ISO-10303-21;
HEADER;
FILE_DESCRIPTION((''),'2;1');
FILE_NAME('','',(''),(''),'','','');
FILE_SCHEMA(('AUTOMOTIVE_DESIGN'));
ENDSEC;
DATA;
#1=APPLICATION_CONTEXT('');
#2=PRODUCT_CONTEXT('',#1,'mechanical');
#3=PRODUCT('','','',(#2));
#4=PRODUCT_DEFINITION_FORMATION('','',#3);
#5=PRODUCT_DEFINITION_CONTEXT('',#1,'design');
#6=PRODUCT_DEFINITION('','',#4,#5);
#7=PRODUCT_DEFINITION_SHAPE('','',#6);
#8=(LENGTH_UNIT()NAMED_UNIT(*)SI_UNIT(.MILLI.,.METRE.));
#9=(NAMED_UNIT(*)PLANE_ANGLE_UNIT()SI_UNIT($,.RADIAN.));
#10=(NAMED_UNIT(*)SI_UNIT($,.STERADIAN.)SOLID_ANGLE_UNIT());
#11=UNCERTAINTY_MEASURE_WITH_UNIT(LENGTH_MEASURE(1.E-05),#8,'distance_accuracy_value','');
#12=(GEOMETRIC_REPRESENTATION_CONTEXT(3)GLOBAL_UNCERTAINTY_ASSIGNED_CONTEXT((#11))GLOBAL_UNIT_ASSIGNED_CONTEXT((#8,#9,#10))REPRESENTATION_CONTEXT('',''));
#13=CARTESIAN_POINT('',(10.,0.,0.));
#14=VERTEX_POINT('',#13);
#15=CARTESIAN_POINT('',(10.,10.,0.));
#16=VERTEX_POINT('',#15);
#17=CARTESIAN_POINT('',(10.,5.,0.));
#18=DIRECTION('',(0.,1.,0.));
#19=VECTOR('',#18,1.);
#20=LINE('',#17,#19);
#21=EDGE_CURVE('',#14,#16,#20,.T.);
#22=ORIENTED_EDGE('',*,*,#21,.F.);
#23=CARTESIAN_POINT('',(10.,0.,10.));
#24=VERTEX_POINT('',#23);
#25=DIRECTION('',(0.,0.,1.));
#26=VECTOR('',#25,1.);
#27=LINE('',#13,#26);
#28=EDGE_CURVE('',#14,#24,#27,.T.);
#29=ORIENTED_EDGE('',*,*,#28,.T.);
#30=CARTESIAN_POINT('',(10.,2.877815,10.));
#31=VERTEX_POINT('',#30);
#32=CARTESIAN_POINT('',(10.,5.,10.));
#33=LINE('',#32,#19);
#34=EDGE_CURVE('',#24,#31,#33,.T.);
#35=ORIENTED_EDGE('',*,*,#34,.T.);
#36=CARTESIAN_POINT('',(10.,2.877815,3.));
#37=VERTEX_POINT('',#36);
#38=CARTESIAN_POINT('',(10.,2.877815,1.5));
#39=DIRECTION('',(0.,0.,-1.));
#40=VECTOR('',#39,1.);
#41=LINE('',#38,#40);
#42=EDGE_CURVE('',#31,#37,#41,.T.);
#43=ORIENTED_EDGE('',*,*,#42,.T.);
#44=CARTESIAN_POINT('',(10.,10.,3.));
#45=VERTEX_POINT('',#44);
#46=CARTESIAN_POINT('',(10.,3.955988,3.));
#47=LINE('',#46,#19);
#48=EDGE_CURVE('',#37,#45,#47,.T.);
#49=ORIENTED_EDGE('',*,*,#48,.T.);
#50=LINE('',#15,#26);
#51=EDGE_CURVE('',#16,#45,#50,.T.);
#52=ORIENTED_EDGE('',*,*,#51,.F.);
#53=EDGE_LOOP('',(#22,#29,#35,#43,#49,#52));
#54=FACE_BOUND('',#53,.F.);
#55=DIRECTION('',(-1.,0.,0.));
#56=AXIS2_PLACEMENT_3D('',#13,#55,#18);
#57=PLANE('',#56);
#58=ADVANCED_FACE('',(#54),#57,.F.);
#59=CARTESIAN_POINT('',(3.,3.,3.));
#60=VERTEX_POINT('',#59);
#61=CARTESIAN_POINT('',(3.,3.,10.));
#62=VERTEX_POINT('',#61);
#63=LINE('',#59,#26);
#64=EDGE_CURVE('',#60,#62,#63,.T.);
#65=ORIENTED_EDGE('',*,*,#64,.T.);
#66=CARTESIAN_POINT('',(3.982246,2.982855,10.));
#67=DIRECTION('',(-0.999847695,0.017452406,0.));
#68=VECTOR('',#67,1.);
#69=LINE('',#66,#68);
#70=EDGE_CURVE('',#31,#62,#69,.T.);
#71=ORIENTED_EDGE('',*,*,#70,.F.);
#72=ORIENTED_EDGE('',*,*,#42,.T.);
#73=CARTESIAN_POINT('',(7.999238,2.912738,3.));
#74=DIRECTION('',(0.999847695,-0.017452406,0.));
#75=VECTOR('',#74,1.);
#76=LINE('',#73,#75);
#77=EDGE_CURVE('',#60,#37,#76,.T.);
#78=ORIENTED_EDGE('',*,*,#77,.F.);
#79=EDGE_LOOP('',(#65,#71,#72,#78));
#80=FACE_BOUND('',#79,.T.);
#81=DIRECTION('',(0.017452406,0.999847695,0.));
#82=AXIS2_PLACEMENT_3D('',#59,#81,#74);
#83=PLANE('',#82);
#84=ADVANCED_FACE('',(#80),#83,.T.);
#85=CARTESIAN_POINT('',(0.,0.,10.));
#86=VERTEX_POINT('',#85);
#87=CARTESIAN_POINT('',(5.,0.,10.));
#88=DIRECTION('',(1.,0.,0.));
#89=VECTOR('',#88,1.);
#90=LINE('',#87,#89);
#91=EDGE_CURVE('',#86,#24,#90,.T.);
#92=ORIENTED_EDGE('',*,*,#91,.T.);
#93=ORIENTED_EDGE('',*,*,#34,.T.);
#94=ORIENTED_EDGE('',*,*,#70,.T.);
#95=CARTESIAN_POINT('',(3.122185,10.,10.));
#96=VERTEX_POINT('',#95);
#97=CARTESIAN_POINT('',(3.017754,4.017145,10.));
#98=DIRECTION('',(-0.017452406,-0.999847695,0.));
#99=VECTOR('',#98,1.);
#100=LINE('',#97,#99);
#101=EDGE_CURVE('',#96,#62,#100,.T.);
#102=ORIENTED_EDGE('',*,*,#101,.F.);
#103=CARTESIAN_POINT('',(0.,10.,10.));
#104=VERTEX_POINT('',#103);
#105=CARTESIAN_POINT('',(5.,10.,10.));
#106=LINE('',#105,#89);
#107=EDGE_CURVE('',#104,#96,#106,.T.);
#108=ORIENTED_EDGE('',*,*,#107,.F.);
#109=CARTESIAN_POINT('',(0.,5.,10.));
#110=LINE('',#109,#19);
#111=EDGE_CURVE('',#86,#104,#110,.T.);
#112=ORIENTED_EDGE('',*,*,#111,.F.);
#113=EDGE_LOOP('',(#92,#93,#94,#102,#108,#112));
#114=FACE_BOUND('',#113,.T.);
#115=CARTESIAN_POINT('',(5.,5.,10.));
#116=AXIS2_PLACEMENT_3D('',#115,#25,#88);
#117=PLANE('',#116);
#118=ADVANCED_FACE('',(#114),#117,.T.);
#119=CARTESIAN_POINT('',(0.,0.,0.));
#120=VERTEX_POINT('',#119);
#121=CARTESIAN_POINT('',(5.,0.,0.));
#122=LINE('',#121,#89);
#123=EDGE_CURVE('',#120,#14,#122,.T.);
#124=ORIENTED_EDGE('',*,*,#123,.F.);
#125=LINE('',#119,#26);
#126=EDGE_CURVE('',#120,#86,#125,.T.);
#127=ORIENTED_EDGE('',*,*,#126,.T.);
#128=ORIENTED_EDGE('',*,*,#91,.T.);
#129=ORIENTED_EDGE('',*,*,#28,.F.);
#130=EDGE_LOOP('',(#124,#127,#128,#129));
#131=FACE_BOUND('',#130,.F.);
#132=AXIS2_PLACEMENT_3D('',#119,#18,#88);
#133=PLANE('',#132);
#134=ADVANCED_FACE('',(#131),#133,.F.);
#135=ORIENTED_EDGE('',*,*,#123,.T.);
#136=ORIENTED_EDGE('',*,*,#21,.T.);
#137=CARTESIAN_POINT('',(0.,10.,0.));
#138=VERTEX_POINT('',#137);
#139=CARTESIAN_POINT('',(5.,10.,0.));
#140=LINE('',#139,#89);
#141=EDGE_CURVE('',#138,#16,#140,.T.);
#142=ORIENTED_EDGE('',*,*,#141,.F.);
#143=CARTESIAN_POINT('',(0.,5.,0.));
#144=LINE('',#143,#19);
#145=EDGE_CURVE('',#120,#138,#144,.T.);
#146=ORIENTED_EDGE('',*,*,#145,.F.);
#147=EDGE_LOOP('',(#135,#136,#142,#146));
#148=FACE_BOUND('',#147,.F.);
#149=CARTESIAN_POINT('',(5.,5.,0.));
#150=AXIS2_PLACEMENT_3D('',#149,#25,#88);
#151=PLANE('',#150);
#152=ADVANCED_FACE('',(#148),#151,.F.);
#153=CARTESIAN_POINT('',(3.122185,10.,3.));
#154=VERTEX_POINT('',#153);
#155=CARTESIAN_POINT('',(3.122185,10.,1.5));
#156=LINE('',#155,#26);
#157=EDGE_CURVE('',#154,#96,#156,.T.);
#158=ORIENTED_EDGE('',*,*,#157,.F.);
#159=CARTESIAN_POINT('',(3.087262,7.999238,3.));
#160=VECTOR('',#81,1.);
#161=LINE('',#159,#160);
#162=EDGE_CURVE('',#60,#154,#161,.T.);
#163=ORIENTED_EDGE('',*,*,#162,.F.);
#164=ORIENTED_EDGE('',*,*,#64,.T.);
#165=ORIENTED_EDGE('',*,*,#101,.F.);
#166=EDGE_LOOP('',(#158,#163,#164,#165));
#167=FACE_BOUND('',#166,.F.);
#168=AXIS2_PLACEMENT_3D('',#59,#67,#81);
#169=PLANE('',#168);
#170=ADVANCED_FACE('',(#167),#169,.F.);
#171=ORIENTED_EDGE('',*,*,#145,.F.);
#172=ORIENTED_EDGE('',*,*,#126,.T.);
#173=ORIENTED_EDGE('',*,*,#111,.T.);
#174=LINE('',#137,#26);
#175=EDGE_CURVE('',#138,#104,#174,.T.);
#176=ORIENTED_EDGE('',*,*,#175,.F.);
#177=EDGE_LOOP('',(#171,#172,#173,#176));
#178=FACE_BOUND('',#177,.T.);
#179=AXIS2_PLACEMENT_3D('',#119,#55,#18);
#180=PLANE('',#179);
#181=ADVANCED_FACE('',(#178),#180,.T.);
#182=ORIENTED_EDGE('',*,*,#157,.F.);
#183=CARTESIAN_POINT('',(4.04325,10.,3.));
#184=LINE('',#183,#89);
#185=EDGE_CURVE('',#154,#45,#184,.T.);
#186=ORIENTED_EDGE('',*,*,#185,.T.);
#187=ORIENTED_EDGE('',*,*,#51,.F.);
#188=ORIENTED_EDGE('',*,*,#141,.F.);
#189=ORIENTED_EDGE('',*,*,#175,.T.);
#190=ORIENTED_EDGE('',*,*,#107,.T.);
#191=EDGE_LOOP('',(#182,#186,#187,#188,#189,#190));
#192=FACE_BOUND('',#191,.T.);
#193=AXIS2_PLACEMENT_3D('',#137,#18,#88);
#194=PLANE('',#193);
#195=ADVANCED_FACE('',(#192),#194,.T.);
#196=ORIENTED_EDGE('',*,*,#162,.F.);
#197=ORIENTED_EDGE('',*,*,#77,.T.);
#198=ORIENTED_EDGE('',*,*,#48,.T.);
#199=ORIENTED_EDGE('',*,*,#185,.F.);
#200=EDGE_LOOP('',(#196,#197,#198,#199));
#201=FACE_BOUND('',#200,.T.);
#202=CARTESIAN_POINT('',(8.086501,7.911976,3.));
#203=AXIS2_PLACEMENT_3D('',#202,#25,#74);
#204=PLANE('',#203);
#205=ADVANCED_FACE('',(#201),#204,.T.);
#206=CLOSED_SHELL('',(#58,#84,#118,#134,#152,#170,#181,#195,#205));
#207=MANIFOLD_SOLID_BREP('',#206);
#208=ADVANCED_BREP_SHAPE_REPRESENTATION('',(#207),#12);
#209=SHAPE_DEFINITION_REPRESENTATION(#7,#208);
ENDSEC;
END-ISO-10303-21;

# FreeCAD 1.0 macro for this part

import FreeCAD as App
import Part
import Sketcher

V = App.Vector
Q = App.Units.Quantity

doc = App.newDocument("Part")
body = doc.addObject("PartDesign::Body", "Body")

sketch1 = body.newObject("Sketcher::SketchObject", "Sketch")
sketch1.AttachmentSupport = (doc.getObject("XY_Plane"), [""])
sketch1.MapMode = "FlatFace"
sketch1.addGeometry(Part.LineSegment(V(0, 10, 0), V(0, 0, 0)), False)
sketch1.addGeometry(Part.LineSegment(V(0, 0, 0), V(10, 0, 0)), False)
sketch1.addGeometry(Part.LineSegment(V(10, 0, 0), V(10, 10, 0)), False)
sketch1.addGeometry(Part.LineSegment(V(10, 10, 0), V(0, 10, 0)), False)
sketch1.addConstraint(Sketcher.Constraint("Coincident", 0, 2, 1, 1))
sketch1.addConstraint(Sketcher.Constraint("Coincident", 1, 2, 2, 1))
sketch1.addConstraint(Sketcher.Constraint("Coincident", 2, 2, 3, 1))
sketch1.addConstraint(Sketcher.Constraint("Coincident", 3, 2, 0, 1))
sketch1.addConstraint(Sketcher.Constraint("Vertical", 0))
sketch1.addConstraint(Sketcher.Constraint("Horizontal", 1))
sketch1.addConstraint(Sketcher.Constraint("Vertical", 2))
sketch1.addConstraint(Sketcher.Constraint("Horizontal", 3))
sketch1.addConstraint(Sketcher.Constraint("Coincident", 0, 2, -1, 1))
sketch1.addConstraint(Sketcher.Constraint("Equal", 3, 0))
sketch1.addConstraint(Sketcher.Constraint("DistanceX", 1, 1, 1, 2, Q("10 mm")))
pad1 = body.newObject("PartDesign::Pad", "Pad")
pad1.Profile = sketch1
pad1.Length = 10
body2 = doc.addObject("PartDesign::Body", "Body001")
doc.recompute()

body.Placement = App.Placement(V(3, 3, 3), App.Rotation(V(0, 0, -1), 1))
boolean = body2.newObject("PartDesign::Boolean", "Boolean")
boolean.Type = "Fuse"
boolean.addObjects([body])
body3 = doc.addObject("PartDesign::Body", "Body002")

sketch2 = body3.newObject("Sketcher::SketchObject", "Sketch001")
sketch2.AttachmentSupport = (doc.getObject("XY_Plane002"), [""])
sketch2.MapMode = "FlatFace"
sketch2.addGeometry(Part.LineSegment(V(0, 10, 0), V(0, 0, 0)), False)
sketch2.addGeometry(Part.LineSegment(V(0, 0, 0), V(10, 0, 0)), False)
sketch2.addGeometry(Part.LineSegment(V(10, 0, 0), V(10, 10, 0)), False)
sketch2.addGeometry(Part.LineSegment(V(10, 10, 0), V(0, 10, 0)), False)
sketch2.addConstraint(Sketcher.Constraint("Coincident", 0, 2, 1, 1))
sketch2.addConstraint(Sketcher.Constraint("Coincident", 1, 2, 2, 1))
sketch2.addConstraint(Sketcher.Constraint("Coincident", 2, 2, 3, 1))
sketch2.addConstraint(Sketcher.Constraint("Coincident", 3, 2, 0, 1))
sketch2.addConstraint(Sketcher.Constraint("Vertical", 0))
sketch2.addConstraint(Sketcher.Constraint("Horizontal", 1))
sketch2.addConstraint(Sketcher.Constraint("Vertical", 2))
sketch2.addConstraint(Sketcher.Constraint("Horizontal", 3))
sketch2.addConstraint(Sketcher.Constraint("Coincident", 0, 2, -1, 1))
sketch2.addConstraint(Sketcher.Constraint("Equal", 3, 0))
sketch2.addConstraint(Sketcher.Constraint("DistanceX", 1, 1, 1, 2, Q("10 mm")))
pad2 = body3.newObject("PartDesign::Pad", "Pad001")
pad2.Profile = sketch2
pad2.Length = 10
doc.recompute()

boolean2 = body3.newObject("PartDesign::Boolean", "Boolean001")
boolean2.Type = "Cut"
boolean2.addObjects([body2])

doc.recompute()
